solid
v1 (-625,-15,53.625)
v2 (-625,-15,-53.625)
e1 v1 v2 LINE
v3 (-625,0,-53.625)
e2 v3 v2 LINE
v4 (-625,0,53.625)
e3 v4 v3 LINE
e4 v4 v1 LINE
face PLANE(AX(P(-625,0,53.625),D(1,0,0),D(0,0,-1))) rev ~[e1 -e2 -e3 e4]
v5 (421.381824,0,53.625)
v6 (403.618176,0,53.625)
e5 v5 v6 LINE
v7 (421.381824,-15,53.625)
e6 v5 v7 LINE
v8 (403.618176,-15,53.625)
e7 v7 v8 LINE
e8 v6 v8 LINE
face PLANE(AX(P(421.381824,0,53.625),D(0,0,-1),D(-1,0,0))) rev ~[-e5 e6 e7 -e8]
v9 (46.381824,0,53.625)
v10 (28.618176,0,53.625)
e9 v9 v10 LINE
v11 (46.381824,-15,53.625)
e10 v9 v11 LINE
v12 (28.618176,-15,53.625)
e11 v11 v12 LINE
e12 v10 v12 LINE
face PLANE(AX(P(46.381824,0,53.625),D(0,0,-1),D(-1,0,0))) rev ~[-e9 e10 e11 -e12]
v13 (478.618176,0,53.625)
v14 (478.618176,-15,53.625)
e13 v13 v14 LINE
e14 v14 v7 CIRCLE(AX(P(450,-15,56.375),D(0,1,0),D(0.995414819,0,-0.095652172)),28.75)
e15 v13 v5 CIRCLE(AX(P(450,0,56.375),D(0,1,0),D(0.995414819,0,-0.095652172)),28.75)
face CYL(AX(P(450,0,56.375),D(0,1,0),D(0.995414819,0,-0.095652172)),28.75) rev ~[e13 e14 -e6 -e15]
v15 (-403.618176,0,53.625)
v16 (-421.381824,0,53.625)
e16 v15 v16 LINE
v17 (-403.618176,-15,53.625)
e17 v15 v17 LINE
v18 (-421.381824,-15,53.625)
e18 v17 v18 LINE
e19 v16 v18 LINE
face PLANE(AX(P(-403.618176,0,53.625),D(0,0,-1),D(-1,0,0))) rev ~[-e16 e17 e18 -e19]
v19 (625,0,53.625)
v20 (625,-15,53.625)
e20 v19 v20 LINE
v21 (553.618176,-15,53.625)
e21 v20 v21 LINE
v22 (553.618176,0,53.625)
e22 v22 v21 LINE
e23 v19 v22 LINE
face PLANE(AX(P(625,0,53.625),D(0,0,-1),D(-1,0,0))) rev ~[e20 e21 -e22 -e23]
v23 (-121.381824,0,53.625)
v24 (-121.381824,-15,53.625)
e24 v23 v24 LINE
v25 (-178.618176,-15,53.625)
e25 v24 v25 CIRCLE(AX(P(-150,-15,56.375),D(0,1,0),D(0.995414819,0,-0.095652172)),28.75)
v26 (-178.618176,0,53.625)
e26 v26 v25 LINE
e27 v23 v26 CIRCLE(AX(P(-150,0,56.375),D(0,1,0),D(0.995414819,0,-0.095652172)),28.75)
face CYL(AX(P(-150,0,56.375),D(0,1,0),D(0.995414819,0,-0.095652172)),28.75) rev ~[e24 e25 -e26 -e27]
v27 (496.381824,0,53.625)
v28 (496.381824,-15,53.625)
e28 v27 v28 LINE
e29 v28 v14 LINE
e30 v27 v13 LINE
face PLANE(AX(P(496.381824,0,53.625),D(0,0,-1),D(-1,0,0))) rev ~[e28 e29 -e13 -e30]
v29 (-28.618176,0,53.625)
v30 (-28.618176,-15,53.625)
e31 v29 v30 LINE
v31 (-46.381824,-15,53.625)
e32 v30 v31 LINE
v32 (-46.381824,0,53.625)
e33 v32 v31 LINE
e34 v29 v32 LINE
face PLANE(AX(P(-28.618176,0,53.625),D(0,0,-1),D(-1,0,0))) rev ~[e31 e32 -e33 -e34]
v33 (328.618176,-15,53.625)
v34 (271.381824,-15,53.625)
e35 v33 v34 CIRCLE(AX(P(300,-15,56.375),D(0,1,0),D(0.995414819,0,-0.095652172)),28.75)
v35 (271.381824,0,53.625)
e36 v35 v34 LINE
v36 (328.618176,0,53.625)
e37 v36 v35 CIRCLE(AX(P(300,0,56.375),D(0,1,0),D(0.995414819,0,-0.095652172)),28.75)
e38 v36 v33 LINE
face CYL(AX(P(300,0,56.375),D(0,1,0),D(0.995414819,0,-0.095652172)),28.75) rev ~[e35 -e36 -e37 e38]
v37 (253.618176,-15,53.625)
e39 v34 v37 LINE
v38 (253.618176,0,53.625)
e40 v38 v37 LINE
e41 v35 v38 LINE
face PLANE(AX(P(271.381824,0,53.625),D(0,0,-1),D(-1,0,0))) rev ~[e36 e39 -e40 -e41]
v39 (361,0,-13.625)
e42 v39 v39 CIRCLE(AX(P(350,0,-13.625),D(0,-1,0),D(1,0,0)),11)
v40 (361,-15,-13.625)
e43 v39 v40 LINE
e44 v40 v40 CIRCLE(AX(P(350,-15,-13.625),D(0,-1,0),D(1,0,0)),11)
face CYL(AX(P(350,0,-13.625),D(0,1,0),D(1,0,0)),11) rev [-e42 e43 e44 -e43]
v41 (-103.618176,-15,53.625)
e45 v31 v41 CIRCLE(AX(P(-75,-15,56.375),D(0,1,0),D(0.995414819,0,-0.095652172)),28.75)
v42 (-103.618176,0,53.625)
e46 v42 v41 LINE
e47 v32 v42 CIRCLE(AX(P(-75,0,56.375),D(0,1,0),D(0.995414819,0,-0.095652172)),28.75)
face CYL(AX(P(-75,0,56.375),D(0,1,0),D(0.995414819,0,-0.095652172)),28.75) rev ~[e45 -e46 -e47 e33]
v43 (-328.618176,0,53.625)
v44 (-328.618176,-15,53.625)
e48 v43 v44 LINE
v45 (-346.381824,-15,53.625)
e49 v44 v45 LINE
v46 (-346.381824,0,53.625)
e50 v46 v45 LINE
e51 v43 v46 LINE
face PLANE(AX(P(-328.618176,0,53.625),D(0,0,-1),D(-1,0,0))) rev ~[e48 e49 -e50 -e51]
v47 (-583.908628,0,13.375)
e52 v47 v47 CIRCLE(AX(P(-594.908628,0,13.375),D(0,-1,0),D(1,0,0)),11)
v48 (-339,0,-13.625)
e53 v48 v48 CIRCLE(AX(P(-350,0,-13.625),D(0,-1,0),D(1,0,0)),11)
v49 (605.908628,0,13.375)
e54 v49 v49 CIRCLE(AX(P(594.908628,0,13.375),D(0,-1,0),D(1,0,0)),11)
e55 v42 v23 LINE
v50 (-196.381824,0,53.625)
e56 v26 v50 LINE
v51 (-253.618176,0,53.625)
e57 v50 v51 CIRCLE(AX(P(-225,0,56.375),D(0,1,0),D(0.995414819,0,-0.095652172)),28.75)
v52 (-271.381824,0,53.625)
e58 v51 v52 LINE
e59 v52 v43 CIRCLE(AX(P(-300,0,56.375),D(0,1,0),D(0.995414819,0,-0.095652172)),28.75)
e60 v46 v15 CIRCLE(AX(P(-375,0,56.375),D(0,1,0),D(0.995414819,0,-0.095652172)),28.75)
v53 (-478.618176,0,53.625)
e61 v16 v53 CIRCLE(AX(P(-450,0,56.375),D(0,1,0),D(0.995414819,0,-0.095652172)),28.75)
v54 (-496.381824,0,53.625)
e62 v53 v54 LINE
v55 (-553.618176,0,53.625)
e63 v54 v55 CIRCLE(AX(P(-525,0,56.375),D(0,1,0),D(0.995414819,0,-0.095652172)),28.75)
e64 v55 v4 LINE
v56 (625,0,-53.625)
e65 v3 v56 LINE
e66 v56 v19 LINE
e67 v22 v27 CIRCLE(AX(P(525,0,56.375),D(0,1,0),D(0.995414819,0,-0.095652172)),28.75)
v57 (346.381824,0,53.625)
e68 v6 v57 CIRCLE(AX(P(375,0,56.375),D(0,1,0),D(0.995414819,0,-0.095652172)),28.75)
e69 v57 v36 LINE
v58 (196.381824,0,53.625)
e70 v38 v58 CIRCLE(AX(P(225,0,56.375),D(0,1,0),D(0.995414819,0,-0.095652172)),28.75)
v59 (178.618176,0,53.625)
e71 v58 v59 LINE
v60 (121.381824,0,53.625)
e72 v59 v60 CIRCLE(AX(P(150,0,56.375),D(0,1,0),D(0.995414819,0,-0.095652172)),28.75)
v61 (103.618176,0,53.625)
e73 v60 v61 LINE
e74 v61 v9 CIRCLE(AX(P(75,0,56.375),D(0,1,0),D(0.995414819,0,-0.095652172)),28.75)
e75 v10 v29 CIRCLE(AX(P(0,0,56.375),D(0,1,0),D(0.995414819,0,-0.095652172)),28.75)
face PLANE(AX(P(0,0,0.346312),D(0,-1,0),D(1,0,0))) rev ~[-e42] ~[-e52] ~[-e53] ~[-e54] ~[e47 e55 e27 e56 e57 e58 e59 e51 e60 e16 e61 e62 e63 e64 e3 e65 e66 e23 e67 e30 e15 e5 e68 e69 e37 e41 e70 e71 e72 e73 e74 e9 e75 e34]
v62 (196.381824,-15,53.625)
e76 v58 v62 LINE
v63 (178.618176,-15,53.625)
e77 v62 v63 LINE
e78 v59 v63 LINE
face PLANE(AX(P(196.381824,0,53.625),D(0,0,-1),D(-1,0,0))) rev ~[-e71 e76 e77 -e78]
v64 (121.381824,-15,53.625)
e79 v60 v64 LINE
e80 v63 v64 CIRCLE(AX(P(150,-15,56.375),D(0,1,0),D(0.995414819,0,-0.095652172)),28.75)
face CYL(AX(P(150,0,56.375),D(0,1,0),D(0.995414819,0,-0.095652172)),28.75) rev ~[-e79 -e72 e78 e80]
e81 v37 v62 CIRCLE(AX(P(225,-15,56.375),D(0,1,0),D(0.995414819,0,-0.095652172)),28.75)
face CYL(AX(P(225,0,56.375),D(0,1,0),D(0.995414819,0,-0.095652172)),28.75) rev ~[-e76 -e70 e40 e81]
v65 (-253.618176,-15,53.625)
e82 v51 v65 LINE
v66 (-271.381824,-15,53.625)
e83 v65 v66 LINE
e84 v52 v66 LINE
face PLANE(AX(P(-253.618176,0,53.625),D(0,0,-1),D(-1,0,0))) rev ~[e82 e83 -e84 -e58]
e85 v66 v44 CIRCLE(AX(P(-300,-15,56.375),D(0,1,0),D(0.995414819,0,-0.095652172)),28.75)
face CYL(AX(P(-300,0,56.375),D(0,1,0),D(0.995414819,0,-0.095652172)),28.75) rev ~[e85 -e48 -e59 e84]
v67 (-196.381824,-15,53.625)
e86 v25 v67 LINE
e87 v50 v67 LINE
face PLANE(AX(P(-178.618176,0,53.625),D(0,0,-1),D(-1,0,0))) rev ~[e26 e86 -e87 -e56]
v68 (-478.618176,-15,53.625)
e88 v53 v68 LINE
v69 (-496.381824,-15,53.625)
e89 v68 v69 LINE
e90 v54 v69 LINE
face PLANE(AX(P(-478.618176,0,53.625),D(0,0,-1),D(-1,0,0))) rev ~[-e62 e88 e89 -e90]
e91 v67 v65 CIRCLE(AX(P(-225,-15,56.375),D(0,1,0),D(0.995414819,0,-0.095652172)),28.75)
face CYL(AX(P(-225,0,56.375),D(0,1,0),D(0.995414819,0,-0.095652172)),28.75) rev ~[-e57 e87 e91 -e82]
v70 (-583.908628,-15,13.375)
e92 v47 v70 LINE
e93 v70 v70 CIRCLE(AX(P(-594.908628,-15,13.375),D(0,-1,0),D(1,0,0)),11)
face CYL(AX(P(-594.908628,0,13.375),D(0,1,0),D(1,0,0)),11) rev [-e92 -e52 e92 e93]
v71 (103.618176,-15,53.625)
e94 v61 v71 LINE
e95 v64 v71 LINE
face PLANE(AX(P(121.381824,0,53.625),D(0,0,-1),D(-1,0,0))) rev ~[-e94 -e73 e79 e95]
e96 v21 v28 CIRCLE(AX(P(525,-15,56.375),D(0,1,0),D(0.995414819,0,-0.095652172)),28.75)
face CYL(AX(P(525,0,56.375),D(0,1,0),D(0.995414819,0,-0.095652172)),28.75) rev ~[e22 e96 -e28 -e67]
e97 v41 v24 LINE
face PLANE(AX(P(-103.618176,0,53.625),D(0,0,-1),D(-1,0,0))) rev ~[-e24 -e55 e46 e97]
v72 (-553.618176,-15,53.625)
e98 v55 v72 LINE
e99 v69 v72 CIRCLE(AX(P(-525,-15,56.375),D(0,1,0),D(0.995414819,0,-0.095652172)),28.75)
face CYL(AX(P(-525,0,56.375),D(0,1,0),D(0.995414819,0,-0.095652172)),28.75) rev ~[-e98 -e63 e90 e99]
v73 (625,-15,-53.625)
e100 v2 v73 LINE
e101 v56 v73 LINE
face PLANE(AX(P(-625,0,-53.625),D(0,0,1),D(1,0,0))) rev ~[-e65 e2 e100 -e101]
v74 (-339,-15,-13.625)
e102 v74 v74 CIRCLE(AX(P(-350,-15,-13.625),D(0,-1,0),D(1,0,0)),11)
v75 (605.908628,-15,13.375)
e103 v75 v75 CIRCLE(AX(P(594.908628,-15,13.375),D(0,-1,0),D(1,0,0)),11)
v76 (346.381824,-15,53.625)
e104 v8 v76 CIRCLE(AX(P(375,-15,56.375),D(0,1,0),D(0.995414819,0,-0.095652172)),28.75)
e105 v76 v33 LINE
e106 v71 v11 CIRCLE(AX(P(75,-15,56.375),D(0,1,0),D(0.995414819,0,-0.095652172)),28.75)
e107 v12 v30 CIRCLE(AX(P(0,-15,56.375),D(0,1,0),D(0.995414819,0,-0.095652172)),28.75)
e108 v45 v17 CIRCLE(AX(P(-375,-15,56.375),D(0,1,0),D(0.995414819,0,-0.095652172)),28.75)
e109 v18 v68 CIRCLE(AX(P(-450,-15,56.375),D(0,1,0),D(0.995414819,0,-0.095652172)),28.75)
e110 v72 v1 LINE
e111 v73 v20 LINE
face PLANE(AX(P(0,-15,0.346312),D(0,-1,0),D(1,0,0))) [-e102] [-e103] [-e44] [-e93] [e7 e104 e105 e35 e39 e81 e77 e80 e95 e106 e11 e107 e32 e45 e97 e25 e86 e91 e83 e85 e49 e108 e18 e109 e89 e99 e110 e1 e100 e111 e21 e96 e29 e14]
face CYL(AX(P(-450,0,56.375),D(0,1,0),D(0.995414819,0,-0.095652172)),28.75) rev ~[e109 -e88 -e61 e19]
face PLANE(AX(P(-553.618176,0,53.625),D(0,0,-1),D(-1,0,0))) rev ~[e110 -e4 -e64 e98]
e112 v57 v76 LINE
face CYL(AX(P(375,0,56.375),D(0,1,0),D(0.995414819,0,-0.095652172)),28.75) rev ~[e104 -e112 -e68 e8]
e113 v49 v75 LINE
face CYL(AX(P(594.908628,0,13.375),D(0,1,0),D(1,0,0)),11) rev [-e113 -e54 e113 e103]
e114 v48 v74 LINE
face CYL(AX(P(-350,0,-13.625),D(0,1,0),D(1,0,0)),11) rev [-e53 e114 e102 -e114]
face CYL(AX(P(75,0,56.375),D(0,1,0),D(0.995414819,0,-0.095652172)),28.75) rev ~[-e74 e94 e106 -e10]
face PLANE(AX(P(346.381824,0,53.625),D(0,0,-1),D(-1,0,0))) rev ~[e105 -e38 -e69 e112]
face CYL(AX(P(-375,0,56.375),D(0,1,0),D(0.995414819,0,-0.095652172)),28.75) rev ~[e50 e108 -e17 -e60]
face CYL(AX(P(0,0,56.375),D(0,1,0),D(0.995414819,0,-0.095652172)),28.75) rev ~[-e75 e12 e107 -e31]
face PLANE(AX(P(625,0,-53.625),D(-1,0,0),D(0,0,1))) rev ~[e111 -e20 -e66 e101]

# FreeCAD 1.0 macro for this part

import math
import FreeCAD as App
import Part
import Sketcher

doc = App.newDocument("Part")
body = doc.addObject("PartDesign::Body", "Body")

# Sketch on XZ plane
sketch1 = body.newObject("Sketcher::SketchObject", "Sketch")
sketch1.AttachmentSupport = (doc.getObject("XZ_Plane"), [""])
sketch1.MapMode = "FlatFace"
sketch1.addGeometry([
    Part.LineSegment(App.Vector(625, -53.625, 0), App.Vector(625, 53.625, 0)),  # 0
    Part.LineSegment(App.Vector(625, 53.625, 0), App.Vector(553.618176, 53.625, 0)),  # 1
    Part.ArcOfCircle(Part.Circle(App.Vector(525, 56.375, 0), App.Vector(0, 0, 1), 28.75), math.radians(-174.511143), math.radians(-5.488857)),  # 2
    Part.LineSegment(App.Vector(496.381824, 53.625, 0), App.Vector(478.618176, 53.625, 0)),  # 3
    Part.ArcOfCircle(Part.Circle(App.Vector(450, 56.375, 0), App.Vector(0, 0, 1), 28.75), math.radians(-174.511143), math.radians(-5.488857)),  # 4
    Part.LineSegment(App.Vector(421.381824, 53.625, 0), App.Vector(403.618176, 53.625, 0)),  # 5
    Part.ArcOfCircle(Part.Circle(App.Vector(375, 56.375, 0), App.Vector(0, 0, 1), 28.75), math.radians(-174.511143), math.radians(-5.488857)),  # 6
    Part.LineSegment(App.Vector(346.381824, 53.625, 0), App.Vector(328.618176, 53.625, 0)),  # 7
    Part.ArcOfCircle(Part.Circle(App.Vector(300, 56.375, 0), App.Vector(0, 0, 1), 28.75), math.radians(-174.511143), math.radians(-5.488857)),  # 8
    Part.LineSegment(App.Vector(271.381824, 53.625, 0), App.Vector(253.618176, 53.625, 0)),  # 9
    Part.ArcOfCircle(Part.Circle(App.Vector(225, 56.375, 0), App.Vector(0, 0, 1), 28.75), math.radians(-174.511143), math.radians(-5.488857)),  # 10
    Part.LineSegment(App.Vector(196.381824, 53.625, 0), App.Vector(178.618176, 53.625, 0)),  # 11
    Part.ArcOfCircle(Part.Circle(App.Vector(150, 56.375, 0), App.Vector(0, 0, 1), 28.75), math.radians(-174.511143), math.radians(-5.488857)),  # 12
    Part.LineSegment(App.Vector(121.381824, 53.625, 0), App.Vector(103.618176, 53.625, 0)),  # 13
    Part.ArcOfCircle(Part.Circle(App.Vector(75, 56.375, 0), App.Vector(0, 0, 1), 28.75), math.radians(-174.511143), math.radians(-5.488857)),  # 14
    Part.LineSegment(App.Vector(46.381824, 53.625, 0), App.Vector(28.618176, 53.625, 0)),  # 15
    Part.ArcOfCircle(Part.Circle(App.Vector(0, 56.375, 0), App.Vector(0, 0, 1), 28.75), math.radians(-174.511143), math.radians(-5.488857)),  # 16
    Part.LineSegment(App.Vector(-28.618176, 53.625, 0), App.Vector(-46.381824, 53.625, 0)),  # 17
    Part.ArcOfCircle(Part.Circle(App.Vector(-75, 56.375, 0), App.Vector(0, 0, 1), 28.75), math.radians(-174.511143), math.radians(-5.488857)),  # 18
    Part.LineSegment(App.Vector(-103.618176, 53.625, 0), App.Vector(-121.381824, 53.625, 0)),  # 19
    Part.ArcOfCircle(Part.Circle(App.Vector(-150, 56.375, 0), App.Vector(0, 0, 1), 28.75), math.radians(-174.511143), math.radians(-5.488857)),  # 20
    Part.LineSegment(App.Vector(-178.618176, 53.625, 0), App.Vector(-196.381824, 53.625, 0)),  # 21
    Part.ArcOfCircle(Part.Circle(App.Vector(-225, 56.375, 0), App.Vector(0, 0, 1), 28.75), math.radians(-174.511143), math.radians(-5.488857)),  # 22
    Part.LineSegment(App.Vector(-253.618176, 53.625, 0), App.Vector(-271.381824, 53.625, 0)),  # 23
    Part.ArcOfCircle(Part.Circle(App.Vector(-300, 56.375, 0), App.Vector(0, 0, 1), 28.75), math.radians(-174.511143), math.radians(-5.488857)),  # 24
    Part.LineSegment(App.Vector(-328.618176, 53.625, 0), App.Vector(-346.381824, 53.625, 0)),  # 25
    Part.ArcOfCircle(Part.Circle(App.Vector(-375, 56.375, 0), App.Vector(0, 0, 1), 28.75), math.radians(-174.511143), math.radians(-5.488857)),  # 26
    Part.LineSegment(App.Vector(-403.618176, 53.625, 0), App.Vector(-421.381824, 53.625, 0)),  # 27
    Part.ArcOfCircle(Part.Circle(App.Vector(-450, 56.375, 0), App.Vector(0, 0, 1), 28.75), math.radians(-174.511143), math.radians(-5.488857)),  # 28
    Part.LineSegment(App.Vector(-478.618176, 53.625, 0), App.Vector(-496.381824, 53.625, 0)),  # 29
    Part.ArcOfCircle(Part.Circle(App.Vector(-525, 56.375, 0), App.Vector(0, 0, 1), 28.75), math.radians(-174.511143), math.radians(-5.488857)),  # 30
    Part.LineSegment(App.Vector(-553.618176, 53.625, 0), App.Vector(-625, 53.625, 0)),  # 31
    Part.LineSegment(App.Vector(-625, 53.625, 0), App.Vector(-625, -53.625, 0)),  # 32
    Part.LineSegment(App.Vector(-625, -53.625, 0), App.Vector(625, -53.625, 0)),  # 33
    Part.Circle(App.Vector(-350, -13.625, 0), App.Vector(0, 0, 1), 11),  # 34
    Part.Circle(App.Vector(350, -13.625, 0), App.Vector(0, 0, 1), 11),  # 35
    Part.Circle(App.Vector(-594.908628, 13.375, 0), App.Vector(0, 0, 1), 11),  # 36
    Part.Circle(App.Vector(594.908628, 13.375, 0), App.Vector(0, 0, 1), 11),  # 37
], False)
sketch1.addConstraint([
    Sketcher.Constraint("Coincident", 0, 2, 1, 1),
    Sketcher.Constraint("Coincident", 1, 2, 2, 2),
    Sketcher.Constraint("Coincident", 2, 1, 3, 1),
    Sketcher.Constraint("Coincident", 3, 2, 4, 2),
    Sketcher.Constraint("Coincident", 4, 1, 5, 1),
    Sketcher.Constraint("Coincident", 5, 2, 6, 2),
    Sketcher.Constraint("Coincident", 6, 1, 7, 1),
    Sketcher.Constraint("Coincident", 7, 2, 8, 2),
    Sketcher.Constraint("Coincident", 8, 1, 9, 1),
    Sketcher.Constraint("Coincident", 9, 2, 10, 2),
    Sketcher.Constraint("Coincident", 10, 1, 11, 1),
    Sketcher.Constraint("Coincident", 11, 2, 12, 2),
    Sketcher.Constraint("Coincident", 12, 1, 13, 1),
    Sketcher.Constraint("Coincident", 13, 2, 14, 2),
    Sketcher.Constraint("Coincident", 14, 1, 15, 1),
    Sketcher.Constraint("Coincident", 15, 2, 16, 2),
    Sketcher.Constraint("Coincident", 16, 1, 17, 1),
    Sketcher.Constraint("Coincident", 17, 2, 18, 2),
    Sketcher.Constraint("Coincident", 18, 1, 19, 1),
    Sketcher.Constraint("Coincident", 19, 2, 20, 2),
    Sketcher.Constraint("Coincident", 20, 1, 21, 1),
    Sketcher.Constraint("Coincident", 21, 2, 22, 2),
    Sketcher.Constraint("Coincident", 22, 1, 23, 1),
    Sketcher.Constraint("Coincident", 23, 2, 24, 2),
    Sketcher.Constraint("Coincident", 24, 1, 25, 1),
    Sketcher.Constraint("Coincident", 25, 2, 26, 2),
    Sketcher.Constraint("Coincident", 26, 1, 27, 1),
    Sketcher.Constraint("Coincident", 27, 2, 28, 2),
    Sketcher.Constraint("Coincident", 28, 1, 29, 1),
    Sketcher.Constraint("Coincident", 29, 2, 30, 2),
    Sketcher.Constraint("Coincident", 30, 1, 31, 1),
    Sketcher.Constraint("Coincident", 31, 2, 32, 1),
    Sketcher.Constraint("Coincident", 32, 2, 33, 1),
    Sketcher.Constraint("Coincident", 33, 2, 0, 1),
    Sketcher.Constraint("Vertical", 0),
    Sketcher.Constraint("Horizontal", 1),
    Sketcher.Constraint("Horizontal", 3),
    Sketcher.Constraint("Horizontal", 5),
    Sketcher.Constraint("Horizontal", 7),
    Sketcher.Constraint("Horizontal", 9),
    Sketcher.Constraint("Horizontal", 11),
    Sketcher.Constraint("Horizontal", 13),
    Sketcher.Constraint("Horizontal", 15),
    Sketcher.Constraint("Horizontal", 17),
    Sketcher.Constraint("Horizontal", 19),
    Sketcher.Constraint("Horizontal", 21),
    Sketcher.Constraint("Horizontal", 23),
    Sketcher.Constraint("Horizontal", 25),
    Sketcher.Constraint("Horizontal", 27),
    Sketcher.Constraint("Horizontal", 29),
    Sketcher.Constraint("Horizontal", 31),
    Sketcher.Constraint("Vertical", 32),
    Sketcher.Constraint("Horizontal", 33),
    Sketcher.Constraint("Equal", 2, 4),
    Sketcher.Constraint("Equal", 4, 6),
    Sketcher.Constraint("Equal", 6, 8),
    Sketcher.Constraint("Equal", 8, 10),
    Sketcher.Constraint("Equal", 10, 12),
    Sketcher.Constraint("Equal", 12, 14),
    Sketcher.Constraint("Equal", 14, 16),
    Sketcher.Constraint("Equal", 16, 18),
    Sketcher.Constraint("Equal", 18, 20),
    Sketcher.Constraint("Equal", 20, 22),
    Sketcher.Constraint("Equal", 22, 24),
    Sketcher.Constraint("Equal", 24, 26),
    Sketcher.Constraint("Equal", 26, 28),
    Sketcher.Constraint("Equal", 28, 30),
    Sketcher.Constraint("Equal", 34, 35),
    Sketcher.Constraint("Equal", 35, 36),
    Sketcher.Constraint("Equal", 36, 37),
    Sketcher.Constraint("Symmetric", 0, 2, 32, 2, -1, 1),
    Sketcher.Constraint("Symmetric", 14, 3, 18, 3, -2),
    Sketcher.Constraint("Symmetric", 12, 3, 20, 3, -2),
    Sketcher.Constraint("Symmetric", 10, 3, 22, 3, -2),
    Sketcher.Constraint("Symmetric", 8, 3, 24, 3, -2),
    Sketcher.Constraint("Symmetric", 6, 3, 26, 3, -2),
    Sketcher.Constraint("Symmetric", 4, 3, 28, 3, -2),
    Sketcher.Constraint("Symmetric", 2, 3, 30, 3, -2),
    Sketcher.Constraint("Symmetric", 34, 3, 35, 3, -2),
    Sketcher.Constraint("Symmetric", 36, 3, 37, 3, -2),
    Sketcher.Constraint("Symmetric", 15, 2, 16, 1, -2),
    Sketcher.Constraint("Horizontal", 2, 3, 4, 3),
    Sketcher.Constraint("Horizontal", 4, 3, 6, 3),
    Sketcher.Constraint("Horizontal", 6, 3, 8, 3),
    Sketcher.Constraint("Horizontal", 8, 3, 10, 3),
    Sketcher.Constraint("Horizontal", 10, 3, 12, 3),
    Sketcher.Constraint("Horizontal", 12, 3, 14, 3),
    Sketcher.Constraint("Horizontal", 14, 3, 16, 3),
    Sketcher.Constraint("Horizontal", 1, 2, 2, 1),
    Sketcher.Constraint("Horizontal", 3, 2, 4, 1),
    Sketcher.Constraint("Horizontal", 5, 2, 6, 1),
    Sketcher.Constraint("Horizontal", 7, 2, 8, 1),
    Sketcher.Constraint("Horizontal", 9, 2, 10, 1),
    Sketcher.Constraint("Horizontal", 11, 2, 12, 1),
    Sketcher.Constraint("Horizontal", 13, 2, 14, 1),
    Sketcher.Constraint("Horizontal", 17, 2, 18, 1),
    Sketcher.Constraint("Horizontal", 19, 2, 20, 1),
    Sketcher.Constraint("Horizontal", 21, 2, 22, 1),
    Sketcher.Constraint("Horizontal", 23, 2, 24, 1),
    Sketcher.Constraint("Horizontal", 25, 2, 26, 1),
    Sketcher.Constraint("Horizontal", 27, 2, 28, 1),
    Sketcher.Constraint("Horizontal", 29, 2, 30, 1),
    Sketcher.Constraint("Equal", 3, 5),
    Sketcher.Constraint("Equal", 5, 7),
    Sketcher.Constraint("Equal", 7, 9),
    Sketcher.Constraint("Equal", 9, 11),
    Sketcher.Constraint("Equal", 11, 13),
    Sketcher.Constraint("Equal", 13, 15),
    Sketcher.Constraint("Diameter", 34, 22.0),
    Sketcher.Constraint("DistanceX", 33, 1, 33, 2, 1250.0),
    Sketcher.Constraint("Radius", 2, 28.75),
    Sketcher.Constraint("DistanceX", -1, 1, 2, 3, 525.0),
    Sketcher.Constraint("DistanceX", 34, 3, -1, 1, 350.0),
    Sketcher.Constraint("DistanceY", 34, 3, 26, 3, 70.0),
    Sketcher.Constraint("DistanceY", 36, 3, 30, 3, 43.0),
    Sketcher.Constraint("DistanceY", 32, 2, 36, 3, 67.0),
    Sketcher.Constraint("DistanceY", 0, 1, 0, 2, 107.25),
    Sketcher.Constraint("DistanceX", 36, 3, -1, 1, 594.908628),
])
pad1 = body.newObject("PartDesign::Pad", "Pad")
pad1.Profile = sketch1
pad1.Length = 15

doc.recompute()
